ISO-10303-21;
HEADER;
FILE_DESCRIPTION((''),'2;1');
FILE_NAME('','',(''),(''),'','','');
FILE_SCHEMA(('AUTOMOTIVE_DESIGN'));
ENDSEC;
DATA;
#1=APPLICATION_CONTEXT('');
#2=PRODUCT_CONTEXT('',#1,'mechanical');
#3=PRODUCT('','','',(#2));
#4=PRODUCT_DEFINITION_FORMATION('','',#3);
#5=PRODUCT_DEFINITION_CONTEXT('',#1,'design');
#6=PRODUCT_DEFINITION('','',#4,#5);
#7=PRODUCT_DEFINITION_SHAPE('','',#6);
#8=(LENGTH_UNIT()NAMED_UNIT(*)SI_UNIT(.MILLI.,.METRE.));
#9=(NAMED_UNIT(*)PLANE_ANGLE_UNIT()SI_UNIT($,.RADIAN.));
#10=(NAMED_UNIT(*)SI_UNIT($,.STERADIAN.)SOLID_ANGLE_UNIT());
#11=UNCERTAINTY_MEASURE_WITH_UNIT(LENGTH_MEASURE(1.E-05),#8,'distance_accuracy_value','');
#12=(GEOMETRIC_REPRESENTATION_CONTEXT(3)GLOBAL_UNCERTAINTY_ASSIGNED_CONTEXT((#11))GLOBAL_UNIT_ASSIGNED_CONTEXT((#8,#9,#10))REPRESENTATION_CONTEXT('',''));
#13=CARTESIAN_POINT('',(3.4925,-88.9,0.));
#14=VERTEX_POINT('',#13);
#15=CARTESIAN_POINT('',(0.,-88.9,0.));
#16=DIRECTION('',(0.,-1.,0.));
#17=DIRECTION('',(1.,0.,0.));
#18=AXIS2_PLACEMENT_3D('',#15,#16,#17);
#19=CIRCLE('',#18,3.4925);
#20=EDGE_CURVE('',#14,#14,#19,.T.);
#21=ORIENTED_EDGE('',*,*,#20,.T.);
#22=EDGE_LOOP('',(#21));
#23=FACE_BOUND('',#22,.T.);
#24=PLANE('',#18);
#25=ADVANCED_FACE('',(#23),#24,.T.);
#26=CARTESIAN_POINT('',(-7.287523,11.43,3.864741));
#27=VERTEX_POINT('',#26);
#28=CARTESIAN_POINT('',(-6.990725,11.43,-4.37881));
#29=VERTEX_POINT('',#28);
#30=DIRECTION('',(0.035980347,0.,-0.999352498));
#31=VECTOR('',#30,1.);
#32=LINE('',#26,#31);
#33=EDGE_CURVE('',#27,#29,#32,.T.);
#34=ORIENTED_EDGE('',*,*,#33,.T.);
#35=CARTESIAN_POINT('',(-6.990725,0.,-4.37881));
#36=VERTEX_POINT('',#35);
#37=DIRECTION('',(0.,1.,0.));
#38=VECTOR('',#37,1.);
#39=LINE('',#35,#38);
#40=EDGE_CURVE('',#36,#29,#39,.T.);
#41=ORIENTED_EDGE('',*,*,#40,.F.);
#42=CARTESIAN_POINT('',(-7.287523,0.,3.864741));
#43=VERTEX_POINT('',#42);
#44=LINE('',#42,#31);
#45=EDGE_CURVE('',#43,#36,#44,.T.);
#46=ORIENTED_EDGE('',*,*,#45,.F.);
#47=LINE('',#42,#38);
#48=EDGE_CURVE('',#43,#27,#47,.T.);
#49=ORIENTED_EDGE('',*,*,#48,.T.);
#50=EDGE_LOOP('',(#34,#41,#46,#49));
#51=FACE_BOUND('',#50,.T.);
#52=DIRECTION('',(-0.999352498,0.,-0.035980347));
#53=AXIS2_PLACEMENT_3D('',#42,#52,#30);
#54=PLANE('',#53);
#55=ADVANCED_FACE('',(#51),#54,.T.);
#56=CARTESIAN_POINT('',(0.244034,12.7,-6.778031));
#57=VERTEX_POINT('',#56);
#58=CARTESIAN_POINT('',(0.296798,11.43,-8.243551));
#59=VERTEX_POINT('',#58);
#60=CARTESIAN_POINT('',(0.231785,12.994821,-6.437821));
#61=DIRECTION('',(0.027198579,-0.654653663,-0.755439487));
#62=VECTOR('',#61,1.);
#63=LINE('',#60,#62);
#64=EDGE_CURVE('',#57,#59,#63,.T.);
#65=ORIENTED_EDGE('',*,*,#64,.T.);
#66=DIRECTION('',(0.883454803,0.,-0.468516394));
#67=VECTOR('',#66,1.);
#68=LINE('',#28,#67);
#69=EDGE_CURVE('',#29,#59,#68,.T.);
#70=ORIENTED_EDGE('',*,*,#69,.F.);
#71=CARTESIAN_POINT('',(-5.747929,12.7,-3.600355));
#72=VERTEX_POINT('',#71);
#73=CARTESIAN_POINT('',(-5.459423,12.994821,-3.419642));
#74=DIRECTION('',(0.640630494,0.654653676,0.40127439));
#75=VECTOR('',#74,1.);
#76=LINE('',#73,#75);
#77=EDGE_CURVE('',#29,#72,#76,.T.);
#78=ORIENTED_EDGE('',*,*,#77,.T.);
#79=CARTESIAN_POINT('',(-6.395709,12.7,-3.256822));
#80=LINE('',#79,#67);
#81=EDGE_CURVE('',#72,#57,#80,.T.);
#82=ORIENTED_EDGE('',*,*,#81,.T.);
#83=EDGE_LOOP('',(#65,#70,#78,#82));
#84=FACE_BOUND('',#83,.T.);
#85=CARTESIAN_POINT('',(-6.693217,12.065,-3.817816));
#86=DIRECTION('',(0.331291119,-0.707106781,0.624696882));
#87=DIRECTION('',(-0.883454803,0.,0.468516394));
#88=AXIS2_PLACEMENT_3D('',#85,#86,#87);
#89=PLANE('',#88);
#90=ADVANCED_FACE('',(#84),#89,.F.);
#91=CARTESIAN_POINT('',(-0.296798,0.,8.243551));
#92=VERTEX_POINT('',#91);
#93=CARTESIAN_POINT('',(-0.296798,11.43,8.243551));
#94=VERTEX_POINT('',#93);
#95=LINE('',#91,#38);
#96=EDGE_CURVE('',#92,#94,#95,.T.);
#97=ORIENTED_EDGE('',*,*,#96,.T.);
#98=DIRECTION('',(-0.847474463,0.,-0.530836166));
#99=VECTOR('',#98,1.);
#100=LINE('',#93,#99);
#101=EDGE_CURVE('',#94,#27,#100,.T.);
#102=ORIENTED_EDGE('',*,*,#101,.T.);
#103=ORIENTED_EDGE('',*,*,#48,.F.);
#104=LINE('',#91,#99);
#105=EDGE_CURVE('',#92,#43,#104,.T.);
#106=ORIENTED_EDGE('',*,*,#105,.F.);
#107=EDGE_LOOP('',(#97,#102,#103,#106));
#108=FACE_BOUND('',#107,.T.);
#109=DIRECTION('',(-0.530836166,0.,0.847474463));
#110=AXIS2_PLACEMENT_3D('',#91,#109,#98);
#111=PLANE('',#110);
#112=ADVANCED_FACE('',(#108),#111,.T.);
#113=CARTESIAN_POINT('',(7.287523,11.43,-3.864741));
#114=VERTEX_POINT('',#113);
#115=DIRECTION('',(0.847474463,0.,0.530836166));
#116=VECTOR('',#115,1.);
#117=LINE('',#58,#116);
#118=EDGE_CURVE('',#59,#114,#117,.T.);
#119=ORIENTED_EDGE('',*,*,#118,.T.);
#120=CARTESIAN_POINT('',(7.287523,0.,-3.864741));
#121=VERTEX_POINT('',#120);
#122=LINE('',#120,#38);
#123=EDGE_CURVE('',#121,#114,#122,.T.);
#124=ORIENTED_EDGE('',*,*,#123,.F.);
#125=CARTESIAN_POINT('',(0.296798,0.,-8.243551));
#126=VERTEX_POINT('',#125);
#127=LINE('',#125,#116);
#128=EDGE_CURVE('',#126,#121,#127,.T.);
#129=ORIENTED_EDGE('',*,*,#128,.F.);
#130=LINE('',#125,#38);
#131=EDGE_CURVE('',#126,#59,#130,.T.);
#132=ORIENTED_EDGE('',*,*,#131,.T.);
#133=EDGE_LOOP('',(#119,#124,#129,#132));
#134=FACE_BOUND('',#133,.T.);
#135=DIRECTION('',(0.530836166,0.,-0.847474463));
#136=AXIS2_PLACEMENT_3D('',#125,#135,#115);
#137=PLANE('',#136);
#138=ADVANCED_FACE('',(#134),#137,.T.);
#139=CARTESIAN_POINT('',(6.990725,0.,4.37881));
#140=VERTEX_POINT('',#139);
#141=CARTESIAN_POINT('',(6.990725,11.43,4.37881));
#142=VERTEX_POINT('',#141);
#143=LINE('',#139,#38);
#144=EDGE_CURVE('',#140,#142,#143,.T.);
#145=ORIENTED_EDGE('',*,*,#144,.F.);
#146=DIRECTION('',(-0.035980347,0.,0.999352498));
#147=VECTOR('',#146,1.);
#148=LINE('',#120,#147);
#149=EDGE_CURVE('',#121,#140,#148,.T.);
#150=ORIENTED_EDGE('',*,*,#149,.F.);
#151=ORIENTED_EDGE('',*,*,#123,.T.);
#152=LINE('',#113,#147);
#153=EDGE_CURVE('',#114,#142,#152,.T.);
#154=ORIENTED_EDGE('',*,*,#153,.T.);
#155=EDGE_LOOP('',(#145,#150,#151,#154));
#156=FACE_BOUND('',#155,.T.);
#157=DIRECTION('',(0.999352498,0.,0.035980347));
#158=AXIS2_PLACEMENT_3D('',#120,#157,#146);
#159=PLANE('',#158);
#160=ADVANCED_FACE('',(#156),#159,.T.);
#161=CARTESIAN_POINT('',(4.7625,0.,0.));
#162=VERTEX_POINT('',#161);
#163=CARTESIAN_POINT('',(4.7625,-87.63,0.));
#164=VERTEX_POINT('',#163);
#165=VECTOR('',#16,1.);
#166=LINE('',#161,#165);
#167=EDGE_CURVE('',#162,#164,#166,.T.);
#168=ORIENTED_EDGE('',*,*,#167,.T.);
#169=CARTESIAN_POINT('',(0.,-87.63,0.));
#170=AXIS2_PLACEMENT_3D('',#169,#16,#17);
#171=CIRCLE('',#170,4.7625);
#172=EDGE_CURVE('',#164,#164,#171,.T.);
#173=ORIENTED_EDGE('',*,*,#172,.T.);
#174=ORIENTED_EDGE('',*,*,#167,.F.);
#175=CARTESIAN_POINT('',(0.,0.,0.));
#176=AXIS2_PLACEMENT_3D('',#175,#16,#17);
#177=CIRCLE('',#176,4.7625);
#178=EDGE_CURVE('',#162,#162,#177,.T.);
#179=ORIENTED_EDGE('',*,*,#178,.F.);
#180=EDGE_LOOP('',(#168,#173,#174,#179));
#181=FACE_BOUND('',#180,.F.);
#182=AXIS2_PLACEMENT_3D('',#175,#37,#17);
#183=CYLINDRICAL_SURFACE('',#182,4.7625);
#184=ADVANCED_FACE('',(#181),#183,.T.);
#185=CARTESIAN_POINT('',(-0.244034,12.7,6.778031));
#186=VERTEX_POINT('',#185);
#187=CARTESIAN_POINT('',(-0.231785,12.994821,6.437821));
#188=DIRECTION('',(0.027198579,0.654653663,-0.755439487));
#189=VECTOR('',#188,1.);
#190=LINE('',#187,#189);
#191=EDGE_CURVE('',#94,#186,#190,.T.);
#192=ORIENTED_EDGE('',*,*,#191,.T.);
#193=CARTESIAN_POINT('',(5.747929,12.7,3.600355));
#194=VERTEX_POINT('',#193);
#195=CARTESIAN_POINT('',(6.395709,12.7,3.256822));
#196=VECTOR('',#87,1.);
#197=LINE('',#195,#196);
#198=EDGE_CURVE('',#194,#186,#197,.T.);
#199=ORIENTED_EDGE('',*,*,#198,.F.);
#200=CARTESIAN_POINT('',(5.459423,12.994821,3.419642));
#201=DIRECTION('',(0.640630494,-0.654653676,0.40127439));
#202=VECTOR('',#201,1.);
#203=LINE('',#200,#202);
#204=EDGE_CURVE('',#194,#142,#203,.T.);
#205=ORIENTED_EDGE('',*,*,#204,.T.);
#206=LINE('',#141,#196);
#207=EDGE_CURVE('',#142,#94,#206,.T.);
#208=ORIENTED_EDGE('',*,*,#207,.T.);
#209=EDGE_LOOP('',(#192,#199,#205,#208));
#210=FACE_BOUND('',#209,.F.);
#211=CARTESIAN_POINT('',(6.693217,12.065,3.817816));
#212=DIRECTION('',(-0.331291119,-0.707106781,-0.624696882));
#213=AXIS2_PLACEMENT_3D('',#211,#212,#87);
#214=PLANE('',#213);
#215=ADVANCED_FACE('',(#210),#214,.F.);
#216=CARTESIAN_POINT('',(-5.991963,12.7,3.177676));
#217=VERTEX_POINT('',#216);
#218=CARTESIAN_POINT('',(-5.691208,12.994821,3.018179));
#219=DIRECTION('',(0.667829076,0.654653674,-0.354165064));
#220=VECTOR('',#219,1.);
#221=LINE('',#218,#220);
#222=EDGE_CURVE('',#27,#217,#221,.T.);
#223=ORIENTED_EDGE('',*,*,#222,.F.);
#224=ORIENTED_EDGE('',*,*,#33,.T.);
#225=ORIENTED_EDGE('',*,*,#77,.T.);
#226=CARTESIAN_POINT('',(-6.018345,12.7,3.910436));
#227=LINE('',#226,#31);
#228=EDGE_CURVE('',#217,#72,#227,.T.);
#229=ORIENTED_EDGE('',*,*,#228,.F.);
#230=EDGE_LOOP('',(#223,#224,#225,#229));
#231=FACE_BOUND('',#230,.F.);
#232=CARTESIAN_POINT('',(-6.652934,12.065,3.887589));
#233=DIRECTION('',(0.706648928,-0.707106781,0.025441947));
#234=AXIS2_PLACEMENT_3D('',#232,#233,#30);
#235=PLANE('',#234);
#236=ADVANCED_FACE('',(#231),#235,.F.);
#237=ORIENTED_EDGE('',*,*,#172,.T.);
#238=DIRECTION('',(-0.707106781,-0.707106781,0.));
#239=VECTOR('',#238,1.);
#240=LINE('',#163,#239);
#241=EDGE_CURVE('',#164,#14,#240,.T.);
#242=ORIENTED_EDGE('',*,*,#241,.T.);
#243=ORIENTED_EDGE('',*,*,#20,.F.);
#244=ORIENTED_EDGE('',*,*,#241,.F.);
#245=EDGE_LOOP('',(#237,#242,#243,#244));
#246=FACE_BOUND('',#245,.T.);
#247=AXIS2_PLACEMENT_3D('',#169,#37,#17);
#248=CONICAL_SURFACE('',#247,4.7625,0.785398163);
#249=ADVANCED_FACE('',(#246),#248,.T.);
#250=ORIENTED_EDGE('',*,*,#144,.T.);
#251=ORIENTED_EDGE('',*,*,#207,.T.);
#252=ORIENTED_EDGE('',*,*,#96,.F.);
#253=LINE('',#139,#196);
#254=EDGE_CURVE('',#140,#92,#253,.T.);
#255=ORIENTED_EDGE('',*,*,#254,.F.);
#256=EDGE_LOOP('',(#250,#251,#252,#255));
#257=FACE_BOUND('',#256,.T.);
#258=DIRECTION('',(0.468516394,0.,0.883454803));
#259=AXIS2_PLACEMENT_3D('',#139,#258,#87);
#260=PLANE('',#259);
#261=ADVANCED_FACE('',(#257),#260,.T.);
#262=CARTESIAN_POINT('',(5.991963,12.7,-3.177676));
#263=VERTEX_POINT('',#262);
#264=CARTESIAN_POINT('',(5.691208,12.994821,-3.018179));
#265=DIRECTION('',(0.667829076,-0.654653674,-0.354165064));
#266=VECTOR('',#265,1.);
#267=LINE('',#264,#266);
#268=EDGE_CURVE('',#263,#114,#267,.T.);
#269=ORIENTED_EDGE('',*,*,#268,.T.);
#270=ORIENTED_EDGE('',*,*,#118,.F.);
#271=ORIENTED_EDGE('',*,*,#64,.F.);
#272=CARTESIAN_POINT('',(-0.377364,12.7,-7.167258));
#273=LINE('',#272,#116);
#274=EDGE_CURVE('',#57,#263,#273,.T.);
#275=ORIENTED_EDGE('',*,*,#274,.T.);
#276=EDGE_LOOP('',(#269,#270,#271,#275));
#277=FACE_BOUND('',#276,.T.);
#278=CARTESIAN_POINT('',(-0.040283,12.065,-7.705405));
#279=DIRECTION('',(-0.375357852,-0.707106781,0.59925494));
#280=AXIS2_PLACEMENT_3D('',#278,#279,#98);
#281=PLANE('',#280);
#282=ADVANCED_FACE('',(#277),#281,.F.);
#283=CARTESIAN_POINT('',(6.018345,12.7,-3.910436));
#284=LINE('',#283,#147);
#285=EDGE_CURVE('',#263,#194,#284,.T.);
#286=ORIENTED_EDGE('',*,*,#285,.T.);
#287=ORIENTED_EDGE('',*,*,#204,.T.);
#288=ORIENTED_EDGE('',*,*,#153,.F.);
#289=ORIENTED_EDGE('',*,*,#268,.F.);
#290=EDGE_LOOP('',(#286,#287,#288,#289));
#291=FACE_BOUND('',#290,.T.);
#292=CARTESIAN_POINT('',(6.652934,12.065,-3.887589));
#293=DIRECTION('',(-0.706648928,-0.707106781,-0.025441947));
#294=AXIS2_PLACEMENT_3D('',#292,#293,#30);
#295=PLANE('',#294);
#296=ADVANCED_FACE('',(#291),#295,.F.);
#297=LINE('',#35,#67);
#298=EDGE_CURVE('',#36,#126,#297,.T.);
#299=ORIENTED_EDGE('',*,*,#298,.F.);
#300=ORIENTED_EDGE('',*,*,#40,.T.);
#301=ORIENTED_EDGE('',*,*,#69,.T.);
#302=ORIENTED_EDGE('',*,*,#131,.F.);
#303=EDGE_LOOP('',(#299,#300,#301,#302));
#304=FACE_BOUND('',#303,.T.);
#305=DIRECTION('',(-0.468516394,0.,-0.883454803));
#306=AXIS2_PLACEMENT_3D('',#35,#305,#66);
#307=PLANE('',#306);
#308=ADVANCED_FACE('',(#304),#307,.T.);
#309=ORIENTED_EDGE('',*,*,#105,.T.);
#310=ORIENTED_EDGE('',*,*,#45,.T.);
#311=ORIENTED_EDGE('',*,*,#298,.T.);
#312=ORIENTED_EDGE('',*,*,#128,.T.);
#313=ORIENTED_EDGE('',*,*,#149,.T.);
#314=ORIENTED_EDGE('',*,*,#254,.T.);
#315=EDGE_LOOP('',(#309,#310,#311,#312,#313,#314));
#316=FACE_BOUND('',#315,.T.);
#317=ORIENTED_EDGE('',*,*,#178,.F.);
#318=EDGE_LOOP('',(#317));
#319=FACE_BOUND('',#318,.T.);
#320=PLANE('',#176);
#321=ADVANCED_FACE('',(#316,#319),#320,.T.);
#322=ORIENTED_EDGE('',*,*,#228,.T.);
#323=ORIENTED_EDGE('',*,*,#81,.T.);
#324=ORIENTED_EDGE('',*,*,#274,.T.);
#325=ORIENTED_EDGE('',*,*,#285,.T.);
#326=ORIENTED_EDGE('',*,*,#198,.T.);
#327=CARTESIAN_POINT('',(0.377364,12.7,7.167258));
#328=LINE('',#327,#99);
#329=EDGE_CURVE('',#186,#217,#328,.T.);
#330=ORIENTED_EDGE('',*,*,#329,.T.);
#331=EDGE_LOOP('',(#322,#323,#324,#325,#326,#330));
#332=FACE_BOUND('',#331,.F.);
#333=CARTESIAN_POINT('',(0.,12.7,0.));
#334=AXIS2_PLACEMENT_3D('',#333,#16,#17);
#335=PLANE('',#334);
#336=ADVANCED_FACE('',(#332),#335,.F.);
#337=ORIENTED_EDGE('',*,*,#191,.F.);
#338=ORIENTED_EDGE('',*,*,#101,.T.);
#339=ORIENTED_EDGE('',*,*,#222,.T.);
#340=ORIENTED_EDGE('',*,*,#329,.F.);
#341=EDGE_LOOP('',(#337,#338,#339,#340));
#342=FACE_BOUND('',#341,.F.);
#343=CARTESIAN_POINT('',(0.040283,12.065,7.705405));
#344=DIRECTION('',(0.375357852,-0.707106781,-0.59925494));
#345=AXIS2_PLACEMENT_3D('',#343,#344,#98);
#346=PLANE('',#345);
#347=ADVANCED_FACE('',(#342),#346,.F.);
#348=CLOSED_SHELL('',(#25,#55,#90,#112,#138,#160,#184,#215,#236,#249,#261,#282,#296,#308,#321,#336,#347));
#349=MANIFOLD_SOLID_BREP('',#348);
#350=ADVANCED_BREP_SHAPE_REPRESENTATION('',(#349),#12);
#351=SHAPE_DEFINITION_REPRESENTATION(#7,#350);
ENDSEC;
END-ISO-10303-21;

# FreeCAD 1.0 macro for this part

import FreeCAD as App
import Part
import Sketcher
from FreeCAD import Vector
Q = App.Units.Quantity


def edges_at(feature, points):
    """Names of the edges that pass closest to the given points."""
    edges = feature.Shape.Edges
    near = lambda p: min(range(len(edges)), key=lambda i: edges[i].distToShape(Part.Vertex(*p))[0])
    return sorted({f"Edge{near(p) + 1}" for p in points})


def add_polygon(sketch, points):
    """Adds a closed chain of lines whose ends are joined by coincident constraints."""
    first, n = sketch.GeometryCount, len(points)
    for a, b in zip(points, points[1:] + points[:1]):
        sketch.addGeometry(Part.LineSegment(App.Vector(*a, 0), App.Vector(*b, 0)), False)
    for i in range(n):
        sketch.addConstraint(Sketcher.Constraint("Coincident", first + i, 2, first + (i + 1) % n, 1))

doc = App.newDocument("Part")
body = doc.addObject("PartDesign::Body", "Body")

sketch1 = body.newObject("Sketcher::SketchObject", "Sketch")
sketch1.AttachmentSupport = (doc.getObject("XZ_Plane"), [""])
sketch1.MapMode = "FlatFace"
add_polygon(sketch1, [(0, 8), (-7, 4), (-7, -4), (0, -8), (7, -4), (7, 4)])
sketch1.addConstraint([
    Sketcher.Constraint("Symmetric", 0, 2, 3, 2, -1, 1),
    Sketcher.Constraint("Symmetric", 1, 2, 4, 2, -1, 1),
    Sketcher.Constraint("Symmetric", 2, 2, 5, 2, -1, 1),
    Sketcher.Constraint("Equal", 0, 1),
    Sketcher.Constraint("Equal", 1, 2),
    Sketcher.Constraint("DistanceY", 2, 2, 5, 2, Q("16.487102 mm")),
    Sketcher.Constraint("Distance", 0, Q("8.248892 mm")),
    Sketcher.Constraint("DistanceY", -1, 1, 0, 2, Q("3.864741 mm")),
    Sketcher.Constraint("DistanceY", 1, 2, -1, 1, Q("4.37881 mm")),
])
pad1 = body.newObject("PartDesign::Pad", "Pad")
pad1.Profile = sketch1
pad1.Length = Q("0.5 in")
pad1.Reversed = True

sketch2 = body.newObject("Sketcher::SketchObject", "Sketch001")
sketch2.AttachmentSupport = (doc.getObject("XZ_Plane"), [""])
sketch2.MapMode = "FlatFace"
sketch2.addGeometry(Part.Circle(Vector(0, 0, 0), Vector(0, 0, 1), 4.8), False)
sketch2.addConstraint([
    Sketcher.Constraint("Coincident", 0, 3, -1, 1),
    Sketcher.Constraint("Diameter", 0, Q("0.375 in")),
])
pad2 = body.newObject("PartDesign::Pad", "Pad001")
pad2.Profile = sketch2
pad2.Length = Q("3.5 in")
doc.recompute()

chamfer = body.newObject("PartDesign::Chamfer", "Chamfer")
chamfer.Base = (pad2, edges_at(pad2, [
    (-4.763, -88.9, 0),
    (-7.139, 12.7, -0.257),
    (-3.347, 12.7, -6.311),
    (3.792, 12.7, -6.054),
    (7.139, 12.7, 0.257),
    (3.347, 12.7, 6.311),
    (-3.792, 12.7, 6.054),
]))
chamfer.Size = Q("0.05 in")

doc.recompute()
